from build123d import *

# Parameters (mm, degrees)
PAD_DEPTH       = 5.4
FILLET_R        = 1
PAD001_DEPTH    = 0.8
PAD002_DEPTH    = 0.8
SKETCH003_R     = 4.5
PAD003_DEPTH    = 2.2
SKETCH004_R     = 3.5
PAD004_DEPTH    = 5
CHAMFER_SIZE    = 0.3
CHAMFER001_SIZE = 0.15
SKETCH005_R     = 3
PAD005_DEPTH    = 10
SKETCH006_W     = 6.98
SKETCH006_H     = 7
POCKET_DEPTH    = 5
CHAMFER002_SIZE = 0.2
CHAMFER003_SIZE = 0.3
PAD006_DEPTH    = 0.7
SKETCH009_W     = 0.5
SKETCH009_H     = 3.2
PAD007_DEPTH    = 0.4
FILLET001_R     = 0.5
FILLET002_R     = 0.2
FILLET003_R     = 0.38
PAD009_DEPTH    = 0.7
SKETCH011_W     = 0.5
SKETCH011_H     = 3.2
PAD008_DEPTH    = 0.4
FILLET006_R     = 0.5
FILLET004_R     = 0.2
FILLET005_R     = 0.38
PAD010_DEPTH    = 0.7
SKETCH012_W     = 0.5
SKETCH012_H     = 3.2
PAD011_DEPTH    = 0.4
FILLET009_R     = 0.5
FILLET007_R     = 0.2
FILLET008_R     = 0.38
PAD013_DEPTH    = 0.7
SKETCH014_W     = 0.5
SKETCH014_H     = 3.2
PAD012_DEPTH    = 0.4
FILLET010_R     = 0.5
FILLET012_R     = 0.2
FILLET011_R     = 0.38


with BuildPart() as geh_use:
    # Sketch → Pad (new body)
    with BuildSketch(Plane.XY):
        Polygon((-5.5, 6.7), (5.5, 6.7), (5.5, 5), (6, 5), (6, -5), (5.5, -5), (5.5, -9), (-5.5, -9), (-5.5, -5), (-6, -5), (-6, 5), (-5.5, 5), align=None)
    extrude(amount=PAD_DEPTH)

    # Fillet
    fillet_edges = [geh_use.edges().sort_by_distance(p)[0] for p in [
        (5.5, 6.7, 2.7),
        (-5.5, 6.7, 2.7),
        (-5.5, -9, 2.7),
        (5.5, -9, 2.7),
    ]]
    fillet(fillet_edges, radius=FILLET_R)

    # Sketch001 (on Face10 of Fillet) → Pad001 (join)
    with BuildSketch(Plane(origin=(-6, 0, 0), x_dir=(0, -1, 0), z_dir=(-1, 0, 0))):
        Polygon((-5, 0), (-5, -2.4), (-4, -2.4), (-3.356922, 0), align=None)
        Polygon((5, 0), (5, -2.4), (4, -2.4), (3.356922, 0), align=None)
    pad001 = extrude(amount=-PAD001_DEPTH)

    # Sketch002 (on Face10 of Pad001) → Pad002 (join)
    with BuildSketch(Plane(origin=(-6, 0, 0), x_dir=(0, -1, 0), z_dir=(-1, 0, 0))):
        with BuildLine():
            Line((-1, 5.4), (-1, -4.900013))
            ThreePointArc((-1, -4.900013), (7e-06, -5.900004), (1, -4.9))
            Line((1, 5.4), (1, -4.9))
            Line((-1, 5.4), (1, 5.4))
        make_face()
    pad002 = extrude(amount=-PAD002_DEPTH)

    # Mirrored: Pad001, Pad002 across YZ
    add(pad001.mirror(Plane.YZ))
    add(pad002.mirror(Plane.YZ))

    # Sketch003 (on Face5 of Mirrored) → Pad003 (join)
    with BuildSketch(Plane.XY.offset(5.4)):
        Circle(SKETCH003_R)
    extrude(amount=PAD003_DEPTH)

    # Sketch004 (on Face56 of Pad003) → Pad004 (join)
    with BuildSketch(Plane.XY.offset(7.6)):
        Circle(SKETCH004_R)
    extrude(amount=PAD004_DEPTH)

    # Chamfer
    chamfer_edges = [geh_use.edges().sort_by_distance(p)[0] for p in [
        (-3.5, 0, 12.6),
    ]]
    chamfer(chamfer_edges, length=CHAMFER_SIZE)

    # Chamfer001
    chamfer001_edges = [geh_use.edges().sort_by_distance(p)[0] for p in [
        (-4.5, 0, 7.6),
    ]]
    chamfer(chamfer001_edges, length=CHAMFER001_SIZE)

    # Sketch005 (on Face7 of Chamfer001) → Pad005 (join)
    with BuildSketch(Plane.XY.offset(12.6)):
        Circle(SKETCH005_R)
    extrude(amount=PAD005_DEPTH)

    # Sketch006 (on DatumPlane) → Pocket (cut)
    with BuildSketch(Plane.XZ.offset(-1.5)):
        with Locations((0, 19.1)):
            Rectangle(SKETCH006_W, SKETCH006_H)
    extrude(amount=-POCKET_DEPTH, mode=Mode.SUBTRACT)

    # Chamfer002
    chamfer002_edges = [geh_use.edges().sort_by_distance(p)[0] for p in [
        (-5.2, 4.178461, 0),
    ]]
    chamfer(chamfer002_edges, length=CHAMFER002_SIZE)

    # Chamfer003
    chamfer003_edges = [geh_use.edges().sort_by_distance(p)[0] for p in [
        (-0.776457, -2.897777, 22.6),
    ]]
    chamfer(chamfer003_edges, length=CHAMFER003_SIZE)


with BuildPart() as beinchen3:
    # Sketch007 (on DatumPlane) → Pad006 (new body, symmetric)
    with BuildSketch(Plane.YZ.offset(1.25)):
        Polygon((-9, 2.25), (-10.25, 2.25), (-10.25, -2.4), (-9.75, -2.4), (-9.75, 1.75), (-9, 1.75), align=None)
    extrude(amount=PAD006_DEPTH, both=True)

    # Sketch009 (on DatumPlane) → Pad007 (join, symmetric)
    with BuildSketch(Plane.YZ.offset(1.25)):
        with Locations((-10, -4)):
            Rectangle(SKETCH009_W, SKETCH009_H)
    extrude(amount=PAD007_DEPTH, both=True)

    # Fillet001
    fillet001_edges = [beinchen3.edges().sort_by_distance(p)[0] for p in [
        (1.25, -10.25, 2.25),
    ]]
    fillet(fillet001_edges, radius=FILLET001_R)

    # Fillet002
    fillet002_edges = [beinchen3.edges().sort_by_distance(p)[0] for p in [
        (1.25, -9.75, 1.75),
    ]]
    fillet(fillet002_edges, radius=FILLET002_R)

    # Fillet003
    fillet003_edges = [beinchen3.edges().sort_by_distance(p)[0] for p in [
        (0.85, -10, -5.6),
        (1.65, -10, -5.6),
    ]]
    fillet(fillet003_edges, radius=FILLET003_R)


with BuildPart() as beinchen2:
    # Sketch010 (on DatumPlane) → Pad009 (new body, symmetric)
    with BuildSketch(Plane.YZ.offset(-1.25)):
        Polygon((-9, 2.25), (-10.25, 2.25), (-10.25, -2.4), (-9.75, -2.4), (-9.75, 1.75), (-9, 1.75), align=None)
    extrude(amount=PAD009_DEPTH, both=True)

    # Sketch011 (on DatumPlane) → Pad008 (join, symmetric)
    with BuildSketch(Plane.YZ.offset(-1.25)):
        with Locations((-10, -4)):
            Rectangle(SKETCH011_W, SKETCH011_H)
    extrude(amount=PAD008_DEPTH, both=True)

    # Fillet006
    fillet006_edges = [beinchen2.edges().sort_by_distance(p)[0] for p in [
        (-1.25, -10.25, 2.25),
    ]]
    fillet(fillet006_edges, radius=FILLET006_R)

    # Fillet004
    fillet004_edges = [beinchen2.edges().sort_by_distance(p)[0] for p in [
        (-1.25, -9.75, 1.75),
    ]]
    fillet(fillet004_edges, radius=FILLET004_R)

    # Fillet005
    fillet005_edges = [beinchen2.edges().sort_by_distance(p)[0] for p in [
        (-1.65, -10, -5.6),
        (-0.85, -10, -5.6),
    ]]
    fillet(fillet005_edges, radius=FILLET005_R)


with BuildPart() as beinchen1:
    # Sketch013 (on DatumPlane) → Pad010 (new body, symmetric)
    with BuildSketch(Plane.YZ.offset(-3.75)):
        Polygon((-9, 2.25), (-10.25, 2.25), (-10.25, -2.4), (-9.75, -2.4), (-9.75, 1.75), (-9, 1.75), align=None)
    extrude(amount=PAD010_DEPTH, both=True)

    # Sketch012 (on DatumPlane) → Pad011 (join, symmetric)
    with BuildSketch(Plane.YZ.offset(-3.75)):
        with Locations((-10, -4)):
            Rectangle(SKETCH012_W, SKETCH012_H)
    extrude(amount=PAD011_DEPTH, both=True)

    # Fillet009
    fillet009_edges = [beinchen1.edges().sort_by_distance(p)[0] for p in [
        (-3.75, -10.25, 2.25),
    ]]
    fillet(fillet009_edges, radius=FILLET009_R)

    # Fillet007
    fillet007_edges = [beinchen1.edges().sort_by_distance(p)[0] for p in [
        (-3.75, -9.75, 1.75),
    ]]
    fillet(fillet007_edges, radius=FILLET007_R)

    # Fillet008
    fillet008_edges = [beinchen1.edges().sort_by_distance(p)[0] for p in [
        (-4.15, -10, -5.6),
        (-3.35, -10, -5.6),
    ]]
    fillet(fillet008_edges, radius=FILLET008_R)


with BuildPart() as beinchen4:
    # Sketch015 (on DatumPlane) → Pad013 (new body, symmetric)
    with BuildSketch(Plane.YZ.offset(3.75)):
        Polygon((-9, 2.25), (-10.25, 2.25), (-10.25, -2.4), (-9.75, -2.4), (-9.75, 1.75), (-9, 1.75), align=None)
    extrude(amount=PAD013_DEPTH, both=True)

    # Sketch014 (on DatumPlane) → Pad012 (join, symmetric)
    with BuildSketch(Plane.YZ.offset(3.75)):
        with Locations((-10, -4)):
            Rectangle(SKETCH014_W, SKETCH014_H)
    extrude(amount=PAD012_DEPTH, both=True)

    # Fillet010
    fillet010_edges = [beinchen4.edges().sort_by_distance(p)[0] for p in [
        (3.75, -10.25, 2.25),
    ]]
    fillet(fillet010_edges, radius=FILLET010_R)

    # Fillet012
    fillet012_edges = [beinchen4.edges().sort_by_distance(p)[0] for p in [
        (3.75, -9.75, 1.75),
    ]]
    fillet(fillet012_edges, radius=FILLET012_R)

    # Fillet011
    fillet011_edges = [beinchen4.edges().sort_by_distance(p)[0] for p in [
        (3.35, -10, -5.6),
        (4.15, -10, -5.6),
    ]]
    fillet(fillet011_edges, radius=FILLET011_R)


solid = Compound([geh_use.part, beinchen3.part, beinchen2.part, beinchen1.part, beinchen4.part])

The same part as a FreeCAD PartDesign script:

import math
import FreeCAD as App
import Part
import Sketcher

V = App.Vector
Q = App.Units.Quantity


def edges_at(feature, points):
    """Names of the edges that pass closest to the given points."""
    edges = feature.Shape.Edges
    near = lambda p: min(range(len(edges)), key=lambda i: edges[i].distToShape(Part.Vertex(*p))[0])
    return sorted({f"Edge{near(p) + 1}" for p in points})


def add_polygon(sketch, points):
    """Adds a closed chain of lines whose ends are joined by coincident constraints."""
    first, n = sketch.GeometryCount, len(points)
    for a, b in zip(points, points[1:] + points[:1]):
        sketch.addGeometry(Part.LineSegment(App.Vector(*a, 0), App.Vector(*b, 0)), False)
    for i in range(n):
        sketch.addConstraint(Sketcher.Constraint("Coincident", first + i, 2, first + (i + 1) % n, 1))

doc = App.newDocument("Part")
body = doc.addObject("PartDesign::Body", "Body")

sketch1 = body.newObject("Sketcher::SketchObject", "Sketch")
sketch1.AttachmentSupport = (doc.getObject("XY_Plane"), [""])
sketch1.MapMode = "FlatFace"
add_polygon(sketch1, [(5.5, 6.7), (-5.5, 6.7), (-5.5, 5), (-6, 5), (-6, -5), (-5.5, -5), (-5.5, -9), (5.5, -9), (5.5, -5), (6, -5), (6, 5), (5.5, 5)])
sketch1.addConstraint([
    Sketcher.Constraint("Horizontal", 0),
    Sketcher.Constraint("Vertical", 1),
    Sketcher.Constraint("Horizontal", 2),
    Sketcher.Constraint("Vertical", 3),
    Sketcher.Constraint("Horizontal", 4),
    Sketcher.Constraint("Vertical", 5),
    Sketcher.Constraint("Horizontal", 6),
    Sketcher.Constraint("Vertical", 7),
    Sketcher.Constraint("Horizontal", 8),
    Sketcher.Constraint("Vertical", 9),
    Sketcher.Constraint("Horizontal", 10),
    Sketcher.Constraint("Vertical", 11),
    Sketcher.Constraint("Symmetric", 1, 2, 7, 2, -1, 1),
    Sketcher.Constraint("Symmetric", 3, 2, 9, 2, -1, 1),
    Sketcher.Constraint("Symmetric", 4, 2, 7, 2, -2),
    Sketcher.Constraint("Vertical", 7, 2, 10, 2),
    Sketcher.Constraint("DistanceX", 0, 2, 0, 1, 11.0),
    Sketcher.Constraint("DistanceY", 3, 2, 3, 1, 10.0),
    Sketcher.Constraint("DistanceY", 5, 2, 5, 1, 4.0),
    Sketcher.Constraint("DistanceX", 2, 2, 2, 1, 0.5),
    Sketcher.Constraint("DistanceY", 1, 2, 1, 1, 1.7),
])
pad1 = body.newObject("PartDesign::Pad", "Pad")
pad1.Profile = sketch1
pad1.Length = 5.4
doc.recompute()

fillet = body.newObject("PartDesign::Fillet", "Fillet")
fillet.Base = (pad1, edges_at(pad1, [
    (5.5, 6.7, 2.7),
    (-5.5, 6.7, 2.7),
    (-5.5, -9, 2.7),
    (5.5, -9, 2.7),
]))
fillet.Radius = 1

sketch2 = body.newObject("Sketcher::SketchObject", "Sketch001")
sketch2.AttachmentSupport = (doc.getObject("YZ_Plane"), [""])
sketch2.MapMode = "FlatFace"
sketch2.AttachmentOffset = App.Placement(V(0, 0, -6), App.Rotation())
add_polygon(sketch2, [(5, 0), (5, -2.4), (4, -2.4), (3.4, 0)])
add_polygon(sketch2, [(-5, -2.4), (-5, 0), (-3.4, 0), (-4, -2.4)])
sketch2.addConstraint([
    Sketcher.Constraint("Vertical", 0),
    Sketcher.Constraint("Horizontal", 1),
    Sketcher.Constraint("Horizontal", 3),
    Sketcher.Constraint("Vertical", 4),
    Sketcher.Constraint("Horizontal", 5),
    Sketcher.Constraint("Horizontal", 7),
    Sketcher.Constraint("Symmetric", 3, 2, 4, 2, -1, 1),
    Sketcher.Constraint("Symmetric", 2, 2, 5, 2, -2),
    Sketcher.Constraint("Symmetric", 1, 2, 6, 2, -2),
    Sketcher.Constraint("DistanceX", 1, 2, 1, 1, 1.0),
    Sketcher.Constraint("Angle", 2, Q("104.999999 deg")),
    Sketcher.Constraint("DistanceY", 0, 2, 0, 1, 2.4),
    Sketcher.Constraint("DistanceX", -1, 1, 0, 2, 5.0),
])
pad2 = body.newObject("PartDesign::Pad", "Pad001")
pad2.Profile = sketch2
pad2.Length = 0.8

sketch3 = body.newObject("Sketcher::SketchObject", "Sketch002")
sketch3.AttachmentSupport = (doc.getObject("YZ_Plane"), [""])
sketch3.MapMode = "FlatFace"
sketch3.AttachmentOffset = App.Placement(V(0, 0, -6), App.Rotation())
sketch3.addGeometry([
    Part.LineSegment(V(1, 5.4, 0), V(1, -4.9, 0)),
    Part.ArcOfCircle(Part.Circle(V(0, -4.9, 0), V(0, 0, 1), 1), math.radians(180), math.radians(360)),
    Part.LineSegment(V(-1, -4.9, 0), V(-1, 5.4, 0)),
    Part.LineSegment(V(-1, 5.4, 0), V(1, 5.4, 0)),
], False)
sketch3.addConstraint([
    Sketcher.Constraint("Coincident", 0, 2, 1, 2),
    Sketcher.Constraint("Coincident", 1, 1, 2, 1),
    Sketcher.Constraint("Coincident", 2, 2, 3, 1),
    Sketcher.Constraint("Coincident", 3, 2, 0, 1),
    Sketcher.Constraint("Vertical", 0),
    Sketcher.Constraint("Vertical", 2),
    Sketcher.Constraint("Horizontal", 3),
    Sketcher.Constraint("PointOnObject", 1, 3, -2),
    Sketcher.Constraint("Radius", 1, 1.0),
    Sketcher.Constraint("DistanceY", 2, 1, 2, 2, 10.3),
    Sketcher.Constraint("DistanceY", 1, 1, -1, 1, 4.9),
    Sketcher.Constraint("DistanceY", 0, 2, 0, 1, 10.300013),
    Sketcher.Constraint("DistanceY", 1, 3, -1, 1, 4.900004),
])
pad3 = body.newObject("PartDesign::Pad", "Pad002")
pad3.Profile = sketch3
pad3.Length = 0.8
doc.recompute()

mirrored = body.newObject("PartDesign::Mirrored", "Mirrored")
mirrored.Originals = [pad2, pad3]
mirrored.MirrorPlane = (doc.getObject("YZ_Plane"), [""])
body.Tip = mirrored

sketch4 = body.newObject("Sketcher::SketchObject", "Sketch003")
sketch4.AttachmentSupport = (doc.getObject("XY_Plane"), [""])
sketch4.MapMode = "FlatFace"
sketch4.AttachmentOffset = App.Placement(V(0, 0, 5.4), App.Rotation())
sketch4.addGeometry(Part.Circle(V(0, 0, 0), V(0, 0, 1), 4.5), False)
sketch4.addConstraint([
    Sketcher.Constraint("Coincident", 0, 3, -1, 1),
    Sketcher.Constraint("Diameter", 0, 9.0),
])
pad4 = body.newObject("PartDesign::Pad", "Pad003")
pad4.Profile = sketch4
pad4.Length = 2.2

sketch5 = body.newObject("Sketcher::SketchObject", "Sketch004")
sketch5.AttachmentSupport = (doc.getObject("XY_Plane"), [""])
sketch5.MapMode = "FlatFace"
sketch5.AttachmentOffset = App.Placement(V(0, 0, 7.6), App.Rotation())
sketch5.addGeometry(Part.Circle(V(0, 0, 0), V(0, 0, 1), 3.5), False)
sketch5.addConstraint([
    Sketcher.Constraint("Coincident", 0, 3, -1, 1),
    Sketcher.Constraint("Diameter", 0, 7.0),
])
pad5 = body.newObject("PartDesign::Pad", "Pad004")
pad5.Profile = sketch5
pad5.Length = 5
doc.recompute()

chamfer = body.newObject("PartDesign::Chamfer", "Chamfer")
chamfer.Base = (pad5, edges_at(pad5, [(-3.5, 0, 12.6)]))
chamfer.Size = 0.3
doc.recompute()

chamfer2 = body.newObject("PartDesign::Chamfer", "Chamfer001")
chamfer2.Base = (chamfer, edges_at(chamfer, [(-4.5, 0, 7.6)]))
chamfer2.Size = 0.15

sketch6 = body.newObject("Sketcher::SketchObject", "Sketch005")
sketch6.AttachmentSupport = (doc.getObject("XY_Plane"), [""])
sketch6.MapMode = "FlatFace"
sketch6.AttachmentOffset = App.Placement(V(0, 0, 12.6), App.Rotation())
sketch6.addGeometry(Part.Circle(V(0, 0, 0), V(0, 0, 1), 3), False)
sketch6.addConstraint([
    Sketcher.Constraint("Coincident", 0, 3, -1, 1),
    Sketcher.Constraint("Diameter", 0, 6.0),
])
pad6 = body.newObject("PartDesign::Pad", "Pad005")
pad6.Profile = sketch6
pad6.Length = 10

sketch7 = body.newObject("Sketcher::SketchObject", "Sketch006")
sketch7.AttachmentSupport = (doc.getObject("XZ_Plane"), [""])
sketch7.MapMode = "FlatFace"
sketch7.AttachmentOffset = App.Placement(V(0, 0, -1.5), App.Rotation())
add_polygon(sketch7, [(-3, 23), (-3, 16), (3, 16), (3, 23)])
sketch7.addConstraint([
    Sketcher.Constraint("Vertical", 0),
    Sketcher.Constraint("Horizontal", 1),
    Sketcher.Constraint("Vertical", 2),
    Sketcher.Constraint("Horizontal", 3),
    Sketcher.Constraint("DistanceY", 0, 2, 0, 1, 7.0),
    Sketcher.Constraint("DistanceX", 1, 1, 1, 2, 6.98),
    Sketcher.Constraint("DistanceY", -1, 1, 0, 2, 15.6),
    Sketcher.Constraint("DistanceX", 0, 2, -1, 1, 3.49),
])
pocket1 = body.newObject("PartDesign::Pocket", "Pocket")
pocket1.Profile = sketch7
pocket1.Length = 5
doc.recompute()

chamfer3 = body.newObject("PartDesign::Chamfer", "Chamfer002")
chamfer3.Base = (pocket1, edges_at(pocket1, [(-5.2, 4.178, 0)]))
chamfer3.Size = 0.2
doc.recompute()

chamfer4 = body.newObject("PartDesign::Chamfer", "Chamfer003")
chamfer4.Base = (chamfer3, edges_at(chamfer3, [(-0.776, -2.898, 22.6)]))
chamfer4.Size = 0.3
body2 = doc.addObject("PartDesign::Body", "Body001")

sketch8 = body2.newObject("Sketcher::SketchObject", "Sketch007")
sketch8.AttachmentSupport = (doc.getObject("YZ_Plane001"), [""])
sketch8.MapMode = "FlatFace"
sketch8.AttachmentOffset = App.Placement(V(0, 0, 1.25), App.Rotation())
add_polygon(sketch8, [(-9, 2.2), (-10.2, 2.2), (-10.2, -2.4), (-9.8, -2.4), (-9.8, 1.8), (-9, 1.8)])
sketch8.addConstraint([
    Sketcher.Constraint("Horizontal", 0),
    Sketcher.Constraint("Vertical", 1),
    Sketcher.Constraint("Horizontal", 2),
    Sketcher.Constraint("Vertical", 3),
    Sketcher.Constraint("Horizontal", 4),
    Sketcher.Constraint("Vertical", 5),
    Sketcher.Constraint("Equal", 2, 5),
    Sketcher.Constraint("DistanceX", 2, 1, 2, 2, 0.5),
    Sketcher.Constraint("DistanceX", 4, 2, -1, 1, 9.0),
    Sketcher.Constraint("DistanceX", 0, 2, 0, 1, 1.25),
    Sketcher.Constraint("DistanceY", 1, 2, 1, 1, 4.65),
    Sketcher.Constraint("DistanceY", 1, 2, -1, 1, 2.4),
])
pad7 = body2.newObject("PartDesign::Pad", "Pad006")
pad7.Profile = sketch8
pad7.Length = 1.4
pad7.Midplane = True

sketch9 = body2.newObject("Sketcher::SketchObject", "Sketch008")
sketch9.AttachmentSupport = (doc.getObject("YZ_Plane001"), [""])
sketch9.MapMode = "FlatFace"
sketch9.AttachmentOffset = App.Placement(V(0, 0, 1.25), App.Rotation())
add_polygon(sketch9, [(-10.2, -2.4), (-10.2, -5.6), (-9.8, -5.6), (-9.8, -2.4)])
sketch9.addConstraint([
    Sketcher.Constraint("Vertical", 0),
    Sketcher.Constraint("Horizontal", 1),
    Sketcher.Constraint("Vertical", 2),
    Sketcher.Constraint("Horizontal", 3),
    Sketcher.Constraint("DistanceX", 1, 1, 1, 2, 0.5),
    Sketcher.Constraint("DistanceY", 0, 2, 0, 1, 3.2),
    Sketcher.Constraint("DistanceY", 0, 2, -1, 1, 5.6),
    Sketcher.Constraint("DistanceX", 0, 2, -1, 1, 10.25),
])
pad8 = body2.newObject("PartDesign::Pad", "Pad007")
pad8.Profile = sketch9
pad8.Length = 0.8
pad8.Midplane = True
doc.recompute()

fillet2 = body2.newObject("PartDesign::Fillet", "Fillet001")
fillet2.Base = (pad8, edges_at(pad8, [(1.25, -10.25, 2.25)]))
fillet2.Radius = 0.5
doc.recompute()

fillet3 = body2.newObject("PartDesign::Fillet", "Fillet002")
fillet3.Base = (fillet2, edges_at(fillet2, [(1.25, -9.75, 1.75)]))
fillet3.Radius = 0.2
doc.recompute()

fillet4 = body2.newObject("PartDesign::Fillet", "Fillet003")
fillet4.Base = (fillet3, edges_at(fillet3, [(0.85, -10, -5.6), (1.65, -10, -5.6)]))
fillet4.Radius = 0.38
body3 = doc.addObject("PartDesign::Body", "Body002")

sketch10 = body3.newObject("Sketcher::SketchObject", "Sketch009")
sketch10.AttachmentSupport = (doc.getObject("YZ_Plane002"), [""])
sketch10.MapMode = "FlatFace"
sketch10.AttachmentOffset = App.Placement(V(0, 0, -1.25), App.Rotation())
add_polygon(sketch10, [(-9, 2.2), (-10.2, 2.2), (-10.2, -2.4), (-9.8, -2.4), (-9.8, 1.8), (-9, 1.8)])
sketch10.addConstraint([
    Sketcher.Constraint("Horizontal", 0),
    Sketcher.Constraint("Vertical", 1),
    Sketcher.Constraint("Horizontal", 2),
    Sketcher.Constraint("Vertical", 3),
    Sketcher.Constraint("Horizontal", 4),
    Sketcher.Constraint("Vertical", 5),
    Sketcher.Constraint("Equal", 2, 5),
    Sketcher.Constraint("DistanceX", 2, 1, 2, 2, 0.5),
    Sketcher.Constraint("DistanceX", 4, 2, -1, 1, 9.0),
    Sketcher.Constraint("DistanceX", 0, 2, 0, 1, 1.25),
    Sketcher.Constraint("DistanceY", 1, 2, 1, 1, 4.65),
    Sketcher.Constraint("DistanceY", 1, 2, -1, 1, 2.4),
])
pad9 = body3.newObject("PartDesign::Pad", "Pad008")
pad9.Profile = sketch10
pad9.Length = 1.4
pad9.Midplane = True

sketch11 = body3.newObject("Sketcher::SketchObject", "Sketch010")
sketch11.AttachmentSupport = (doc.getObject("YZ_Plane002"), [""])
sketch11.MapMode = "FlatFace"
sketch11.AttachmentOffset = App.Placement(V(0, 0, -1.25), App.Rotation())
add_polygon(sketch11, [(-10.2, -2.4), (-10.2, -5.6), (-9.8, -5.6), (-9.8, -2.4)])
sketch11.addConstraint([
    Sketcher.Constraint("Vertical", 0),
    Sketcher.Constraint("Horizontal", 1),
    Sketcher.Constraint("Vertical", 2),
    Sketcher.Constraint("Horizontal", 3),
    Sketcher.Constraint("DistanceX", 1, 1, 1, 2, 0.5),
    Sketcher.Constraint("DistanceY", 0, 2, 0, 1, 3.2),
    Sketcher.Constraint("DistanceY", 0, 2, -1, 1, 5.6),
    Sketcher.Constraint("DistanceX", 0, 2, -1, 1, 10.25),
])
pad10 = body3.newObject("PartDesign::Pad", "Pad009")
pad10.Profile = sketch11
pad10.Length = 0.8
pad10.Midplane = True
doc.recompute()

fillet5 = body3.newObject("PartDesign::Fillet", "Fillet004")
fillet5.Base = (pad10, edges_at(pad10, [(-1.25, -10.25, 2.25)]))
fillet5.Radius = 0.5
doc.recompute()

fillet6 = body3.newObject("PartDesign::Fillet", "Fillet005")
fillet6.Base = (fillet5, edges_at(fillet5, [(-1.25, -9.75, 1.75)]))
fillet6.Radius = 0.2
doc.recompute()

fillet7 = body3.newObject("PartDesign::Fillet", "Fillet006")
fillet7.Base = (fillet6, edges_at(fillet6, [(-1.65, -10, -5.6), (-0.85, -10, -5.6)]))
fillet7.Radius = 0.38
body4 = doc.addObject("PartDesign::Body", "Body003")

sketch12 = body4.newObject("Sketcher::SketchObject", "Sketch011")
sketch12.AttachmentSupport = (doc.getObject("YZ_Plane003"), [""])
sketch12.MapMode = "FlatFace"
sketch12.AttachmentOffset = App.Placement(V(0, 0, -3.75), App.Rotation())
add_polygon(sketch12, [(-9, 2.2), (-10.2, 2.2), (-10.2, -2.4), (-9.8, -2.4), (-9.8, 1.8), (-9, 1.8)])
sketch12.addConstraint([
    Sketcher.Constraint("Horizontal", 0),
    Sketcher.Constraint("Vertical", 1),
    Sketcher.Constraint("Horizontal", 2),
    Sketcher.Constraint("Vertical", 3),
    Sketcher.Constraint("Horizontal", 4),
    Sketcher.Constraint("Vertical", 5),
    Sketcher.Constraint("Equal", 2, 5),
    Sketcher.Constraint("DistanceX", 2, 1, 2, 2, 0.5),
    Sketcher.Constraint("DistanceX", 4, 2, -1, 1, 9.0),
    Sketcher.Constraint("DistanceX", 0, 2, 0, 1, 1.25),
    Sketcher.Constraint("DistanceY", 1, 2, 1, 1, 4.65),
    Sketcher.Constraint("DistanceY", 1, 2, -1, 1, 2.4),
])
pad11 = body4.newObject("PartDesign::Pad", "Pad010")
pad11.Profile = sketch12
pad11.Length = 1.4
pad11.Midplane = True

sketch13 = body4.newObject("Sketcher::SketchObject", "Sketch012")
sketch13.AttachmentSupport = (doc.getObject("YZ_Plane003"), [""])
sketch13.MapMode = "FlatFace"
sketch13.AttachmentOffset = App.Placement(V(0, 0, -3.75), App.Rotation())
add_polygon(sketch13, [(-10.2, -2.4), (-10.2, -5.6), (-9.8, -5.6), (-9.8, -2.4)])
sketch13.addConstraint([
    Sketcher.Constraint("Vertical", 0),
    Sketcher.Constraint("Horizontal", 1),
    Sketcher.Constraint("Vertical", 2),
    Sketcher.Constraint("Horizontal", 3),
    Sketcher.Constraint("DistanceX", 1, 1, 1, 2, 0.5),
    Sketcher.Constraint("DistanceY", 0, 2, 0, 1, 3.2),
    Sketcher.Constraint("DistanceY", 0, 2, -1, 1, 5.6),
    Sketcher.Constraint("DistanceX", 0, 2, -1, 1, 10.25),
])
pad12 = body4.newObject("PartDesign::Pad", "Pad011")
pad12.Profile = sketch13
pad12.Length = 0.8
pad12.Midplane = True
doc.recompute()

fillet8 = body4.newObject("PartDesign::Fillet", "Fillet007")
fillet8.Base = (pad12, edges_at(pad12, [(-3.75, -10.25, 2.25)]))
fillet8.Radius = 0.5
doc.recompute()

fillet9 = body4.newObject("PartDesign::Fillet", "Fillet008")
fillet9.Base = (fillet8, edges_at(fillet8, [(-3.75, -9.75, 1.75)]))
fillet9.Radius = 0.2
doc.recompute()

fillet10 = body4.newObject("PartDesign::Fillet", "Fillet009")
fillet10.Base = (fillet9, edges_at(fillet9, [(-4.15, -10, -5.6), (-3.35, -10, -5.6)]))
fillet10.Radius = 0.38
body5 = doc.addObject("PartDesign::Body", "Body004")

sketch14 = body5.newObject("Sketcher::SketchObject", "Sketch013")
sketch14.AttachmentSupport = (doc.getObject("YZ_Plane004"), [""])
sketch14.MapMode = "FlatFace"
sketch14.AttachmentOffset = App.Placement(V(0, 0, 3.75), App.Rotation())
add_polygon(sketch14, [(-9, 2.2), (-10.2, 2.2), (-10.2, -2.4), (-9.8, -2.4), (-9.8, 1.8), (-9, 1.8)])
sketch14.addConstraint([
    Sketcher.Constraint("Horizontal", 0),
    Sketcher.Constraint("Vertical", 1),
    Sketcher.Constraint("Horizontal", 2),
    Sketcher.Constraint("Vertical", 3),
    Sketcher.Constraint("Horizontal", 4),
    Sketcher.Constraint("Vertical", 5),
    Sketcher.Constraint("Equal", 2, 5),
    Sketcher.Constraint("DistanceX", 2, 1, 2, 2, 0.5),
    Sketcher.Constraint("DistanceX", 4, 2, -1, 1, 9.0),
    Sketcher.Constraint("DistanceX", 0, 2, 0, 1, 1.25),
    Sketcher.Constraint("DistanceY", 1, 2, 1, 1, 4.65),
    Sketcher.Constraint("DistanceY", 1, 2, -1, 1, 2.4),
])
pad13 = body5.newObject("PartDesign::Pad", "Pad012")
pad13.Profile = sketch14
pad13.Length = 1.4
pad13.Midplane = True

sketch15 = body5.newObject("Sketcher::SketchObject", "Sketch014")
sketch15.AttachmentSupport = (doc.getObject("YZ_Plane004"), [""])
sketch15.MapMode = "FlatFace"
sketch15.AttachmentOffset = App.Placement(V(0, 0, 3.75), App.Rotation())
add_polygon(sketch15, [(-10.2, -2.4), (-10.2, -5.6), (-9.8, -5.6), (-9.8, -2.4)])
sketch15.addConstraint([
    Sketcher.Constraint("Vertical", 0),
    Sketcher.Constraint("Horizontal", 1),
    Sketcher.Constraint("Vertical", 2),
    Sketcher.Constraint("Horizontal", 3),
    Sketcher.Constraint("DistanceX", 1, 1, 1, 2, 0.5),
    Sketcher.Constraint("DistanceY", 0, 2, 0, 1, 3.2),
    Sketcher.Constraint("DistanceY", 0, 2, -1, 1, 5.6),
    Sketcher.Constraint("DistanceX", 0, 2, -1, 1, 10.25),
])
pad14 = body5.newObject("PartDesign::Pad", "Pad013")
pad14.Profile = sketch15
pad14.Length = 0.8
pad14.Midplane = True
doc.recompute()

fillet11 = body5.newObject("PartDesign::Fillet", "Fillet010")
fillet11.Base = (pad14, edges_at(pad14, [(3.75, -10.25, 2.25)]))
fillet11.Radius = 0.5
doc.recompute()

fillet12 = body5.newObject("PartDesign::Fillet", "Fillet011")
fillet12.Base = (fillet11, edges_at(fillet11, [(3.75, -9.75, 1.75)]))
fillet12.Radius = 0.2
doc.recompute()

fillet13 = body5.newObject("PartDesign::Fillet", "Fillet012")
fillet13.Base = (fillet12, edges_at(fillet12, [(3.35, -10, -5.6), (4.15, -10, -5.6)]))
fillet13.Radius = 0.38

doc.recompute()
